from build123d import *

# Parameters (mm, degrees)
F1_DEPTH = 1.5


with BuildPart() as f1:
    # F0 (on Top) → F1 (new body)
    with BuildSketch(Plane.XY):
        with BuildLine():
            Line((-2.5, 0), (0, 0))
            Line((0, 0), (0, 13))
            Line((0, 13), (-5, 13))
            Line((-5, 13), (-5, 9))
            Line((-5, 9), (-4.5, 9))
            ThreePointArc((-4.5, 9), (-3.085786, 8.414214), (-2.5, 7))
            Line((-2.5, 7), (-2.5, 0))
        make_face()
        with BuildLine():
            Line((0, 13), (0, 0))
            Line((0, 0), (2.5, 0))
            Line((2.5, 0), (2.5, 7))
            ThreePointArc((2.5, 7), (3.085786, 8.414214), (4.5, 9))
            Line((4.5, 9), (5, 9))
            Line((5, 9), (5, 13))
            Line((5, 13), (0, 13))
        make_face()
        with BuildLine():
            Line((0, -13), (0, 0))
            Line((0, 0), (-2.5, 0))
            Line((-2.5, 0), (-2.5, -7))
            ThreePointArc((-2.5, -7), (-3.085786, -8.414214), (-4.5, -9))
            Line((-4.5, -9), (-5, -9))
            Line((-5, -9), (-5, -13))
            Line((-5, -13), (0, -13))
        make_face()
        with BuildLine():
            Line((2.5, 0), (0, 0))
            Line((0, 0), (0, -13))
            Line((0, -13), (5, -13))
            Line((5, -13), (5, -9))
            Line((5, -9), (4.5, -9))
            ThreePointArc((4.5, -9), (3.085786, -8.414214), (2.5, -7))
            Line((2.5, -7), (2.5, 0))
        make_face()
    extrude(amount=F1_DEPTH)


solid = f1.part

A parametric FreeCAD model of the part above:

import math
import FreeCAD as App
import Part
import Sketcher

V = App.Vector

doc = App.newDocument("Part")
body = doc.addObject("PartDesign::Body", "Body")

# Sketch on XY plane
sketch1 = doc.addObject("Sketcher::SketchObject", "Sketch")
body.addObject(sketch1)
sketch1.AttachmentSupport = (doc.XY_Plane, [""])
sketch1.MapMode = "FlatFace"
sketch1.addGeometry([
    Part.ArcOfCircle(Part.Circle(V(4.5, 7, 0), V(0, 0, 1), 2), math.radians(90), math.radians(180)),  # 0
    Part.LineSegment(V(4.5, 9, 0), V(5, 9, 0)),  # 1
    Part.LineSegment(V(5, 9, 0), V(5, 13, 0)),  # 2
    Part.LineSegment(V(5, 13, 0), V(-5, 13, 0)),  # 3
    Part.LineSegment(V(-5, 13, 0), V(-5, 9, 0)),  # 4
    Part.LineSegment(V(-5, 9, 0), V(-4.5, 9, 0)),  # 5
    Part.ArcOfCircle(Part.Circle(V(-4.5, 7, 0), V(0, 0, 1), 2), math.radians(0), math.radians(90)),  # 6
    Part.LineSegment(V(-2.5, 7, 0), V(-2.5, -7, 0)),  # 7
    Part.ArcOfCircle(Part.Circle(V(-4.5, -7, 0), V(0, 0, 1), 2), math.radians(-90), math.radians(0)),  # 8
    Part.LineSegment(V(-4.5, -9, 0), V(-5, -9, 0)),  # 9
    Part.LineSegment(V(-5, -9, 0), V(-5, -13, 0)),  # 10
    Part.LineSegment(V(-5, -13, 0), V(5, -13, 0)),  # 11
    Part.LineSegment(V(5, -13, 0), V(5, -9, 0)),  # 12
    Part.LineSegment(V(5, -9, 0), V(4.5, -9, 0)),  # 13
    Part.ArcOfCircle(Part.Circle(V(4.5, -7, 0), V(0, 0, 1), 2), math.radians(180), math.radians(270)),  # 14
    Part.LineSegment(V(2.5, -7, 0), V(2.5, 7, 0)),  # 15
], False)
sketch1.addConstraint([
    Sketcher.Constraint("Tangent", 0, 1, 1, 1),
    Sketcher.Constraint("Coincident", 1, 2, 2, 1),
    Sketcher.Constraint("Coincident", 2, 2, 3, 1),
    Sketcher.Constraint("Coincident", 3, 2, 4, 1),
    Sketcher.Constraint("Coincident", 4, 2, 5, 1),
    Sketcher.Constraint("Tangent", 5, 2, 6, 2),
    Sketcher.Constraint("Tangent", 6, 1, 7, 1),
    Sketcher.Constraint("Tangent", 7, 2, 8, 2),
    Sketcher.Constraint("Tangent", 8, 1, 9, 1),
    Sketcher.Constraint("Coincident", 9, 2, 10, 1),
    Sketcher.Constraint("Coincident", 10, 2, 11, 1),
    Sketcher.Constraint("Coincident", 11, 2, 12, 1),
    Sketcher.Constraint("Coincident", 12, 2, 13, 1),
    Sketcher.Constraint("Tangent", 13, 2, 14, 2),
    Sketcher.Constraint("Tangent", 14, 1, 15, 1),
    Sketcher.Constraint("Tangent", 15, 2, 0, 2),
    Sketcher.Constraint("Horizontal", 1),
    Sketcher.Constraint("Vertical", 2),
    Sketcher.Constraint("Horizontal", 3),
    Sketcher.Constraint("Vertical", 4),
    Sketcher.Constraint("Horizontal", 5),
    Sketcher.Constraint("Vertical", 7),
    Sketcher.Constraint("Horizontal", 9),
    Sketcher.Constraint("Vertical", 10),
    Sketcher.Constraint("Horizontal", 11),
    Sketcher.Constraint("Vertical", 12),
    Sketcher.Constraint("Horizontal", 13),
    Sketcher.Constraint("Vertical", 15),
    Sketcher.Constraint("Equal", 0, 6),
    Sketcher.Constraint("Equal", 6, 8),
    Sketcher.Constraint("Equal", 8, 14),
    Sketcher.Constraint("Symmetric", 0, 3, 8, 3, -1, 1),
    Sketcher.Constraint("Symmetric", 2, 2, 10, 2, -1, 1),
    Sketcher.Constraint("Symmetric", 4, 2, 12, 2, -1, 1),
    Sketcher.Constraint("Symmetric", 1, 2, 4, 2, -2),
    Sketcher.Constraint("Radius", 0, 1.999999),
    Sketcher.Constraint("DistanceX", 3, 2, 3, 1, 10.0),
    Sketcher.Constraint("DistanceY", 2, 1, 2, 2, 4.0),
    Sketcher.Constraint("DistanceY", 7, 2, 7, 1, 14.0),
    Sketcher.Constraint("DistanceX", 1, 1, 1, 2, 0.5),
])
pad1 = doc.addObject("PartDesign::Pad", "Pad")
body.addObject(pad1)
pad1.Profile = sketch1
pad1.Length = 1.5

doc.recompute()
